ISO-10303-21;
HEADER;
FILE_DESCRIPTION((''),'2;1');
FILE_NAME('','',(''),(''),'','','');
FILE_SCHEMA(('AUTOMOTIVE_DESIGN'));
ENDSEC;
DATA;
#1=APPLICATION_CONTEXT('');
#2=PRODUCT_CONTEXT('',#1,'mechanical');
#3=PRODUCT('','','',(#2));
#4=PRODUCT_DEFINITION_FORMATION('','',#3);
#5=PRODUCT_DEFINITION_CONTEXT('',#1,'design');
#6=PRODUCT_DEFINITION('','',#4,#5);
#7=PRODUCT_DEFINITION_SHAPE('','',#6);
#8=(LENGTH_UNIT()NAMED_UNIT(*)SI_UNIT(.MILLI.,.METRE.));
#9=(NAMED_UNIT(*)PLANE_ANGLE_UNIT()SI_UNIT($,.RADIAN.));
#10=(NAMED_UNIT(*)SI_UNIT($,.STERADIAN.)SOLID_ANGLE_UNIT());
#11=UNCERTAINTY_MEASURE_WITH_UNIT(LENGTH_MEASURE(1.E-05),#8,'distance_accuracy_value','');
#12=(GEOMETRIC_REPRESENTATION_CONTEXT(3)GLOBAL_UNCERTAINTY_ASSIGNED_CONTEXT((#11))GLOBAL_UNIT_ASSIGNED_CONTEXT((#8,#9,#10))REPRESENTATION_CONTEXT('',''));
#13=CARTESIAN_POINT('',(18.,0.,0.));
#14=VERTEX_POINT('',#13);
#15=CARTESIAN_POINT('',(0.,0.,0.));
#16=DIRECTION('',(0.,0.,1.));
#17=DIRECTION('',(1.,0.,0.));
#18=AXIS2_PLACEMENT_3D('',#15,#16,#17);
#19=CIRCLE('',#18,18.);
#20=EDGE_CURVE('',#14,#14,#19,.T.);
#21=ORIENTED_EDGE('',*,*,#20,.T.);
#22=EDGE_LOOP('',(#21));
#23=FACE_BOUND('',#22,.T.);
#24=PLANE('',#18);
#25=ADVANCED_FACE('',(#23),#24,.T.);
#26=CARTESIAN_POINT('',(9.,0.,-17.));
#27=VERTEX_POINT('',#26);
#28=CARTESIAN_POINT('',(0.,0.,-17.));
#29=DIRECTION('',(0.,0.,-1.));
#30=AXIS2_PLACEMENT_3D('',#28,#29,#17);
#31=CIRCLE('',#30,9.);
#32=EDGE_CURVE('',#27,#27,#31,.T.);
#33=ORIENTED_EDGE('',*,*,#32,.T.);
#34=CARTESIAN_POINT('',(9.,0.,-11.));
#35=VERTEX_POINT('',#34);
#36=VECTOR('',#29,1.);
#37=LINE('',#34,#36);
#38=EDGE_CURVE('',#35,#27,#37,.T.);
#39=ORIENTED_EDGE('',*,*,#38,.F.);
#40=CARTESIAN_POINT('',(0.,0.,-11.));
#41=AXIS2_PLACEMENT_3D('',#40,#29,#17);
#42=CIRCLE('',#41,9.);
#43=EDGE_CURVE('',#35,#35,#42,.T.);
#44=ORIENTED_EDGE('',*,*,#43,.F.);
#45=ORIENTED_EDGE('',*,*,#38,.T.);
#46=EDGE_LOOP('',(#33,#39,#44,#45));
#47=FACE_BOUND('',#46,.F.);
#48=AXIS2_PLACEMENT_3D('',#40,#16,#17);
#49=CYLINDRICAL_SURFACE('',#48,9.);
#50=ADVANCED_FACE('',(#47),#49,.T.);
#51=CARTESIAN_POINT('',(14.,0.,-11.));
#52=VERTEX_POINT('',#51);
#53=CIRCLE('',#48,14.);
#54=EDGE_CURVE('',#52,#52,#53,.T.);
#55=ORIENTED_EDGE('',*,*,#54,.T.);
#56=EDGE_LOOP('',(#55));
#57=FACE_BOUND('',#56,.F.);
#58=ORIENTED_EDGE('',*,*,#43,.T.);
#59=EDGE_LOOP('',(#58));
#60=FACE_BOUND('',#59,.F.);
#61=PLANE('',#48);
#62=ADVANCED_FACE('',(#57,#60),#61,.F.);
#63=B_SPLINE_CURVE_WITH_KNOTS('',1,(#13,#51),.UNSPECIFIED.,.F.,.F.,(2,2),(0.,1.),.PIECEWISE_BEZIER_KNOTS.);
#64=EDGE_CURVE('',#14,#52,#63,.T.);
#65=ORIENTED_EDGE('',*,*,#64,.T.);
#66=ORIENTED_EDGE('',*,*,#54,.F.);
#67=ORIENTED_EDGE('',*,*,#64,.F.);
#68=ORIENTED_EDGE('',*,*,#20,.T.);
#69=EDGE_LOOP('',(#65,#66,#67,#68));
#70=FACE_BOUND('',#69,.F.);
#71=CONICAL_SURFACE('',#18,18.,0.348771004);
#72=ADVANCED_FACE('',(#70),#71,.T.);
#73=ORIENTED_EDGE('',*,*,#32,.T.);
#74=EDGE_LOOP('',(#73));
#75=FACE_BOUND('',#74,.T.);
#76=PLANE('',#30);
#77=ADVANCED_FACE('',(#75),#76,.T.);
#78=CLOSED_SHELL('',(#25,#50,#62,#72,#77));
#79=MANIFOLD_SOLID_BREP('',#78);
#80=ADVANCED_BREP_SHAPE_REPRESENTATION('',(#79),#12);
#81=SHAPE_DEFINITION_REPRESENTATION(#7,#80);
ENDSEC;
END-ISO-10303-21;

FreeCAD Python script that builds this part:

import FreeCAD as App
import Part
import Sketcher
from FreeCAD import Vector
Q = App.Units.Quantity

doc = App.newDocument("Part")
params = doc.addObject("Spreadsheet::Sheet", "Params")
for row, (alias, value) in enumerate([
    ("sketch1_diameter", "36 mm"),
    ("sketch2_diameter", "28 mm"),
    ("sketch3_diameter", "18 mm"),
    ("pad1_length", "6 mm"),
], start=1):
    params.set(f"A{row}", alias)
    params.set(f"B{row}", "=" + value)
    params.setAlias(f"B{row}", alias)

body = doc.addObject("PartDesign::Body", "Body")

# Sketch on XY plane
sketch1 = body.newObject("Sketcher::SketchObject", "Sketch")
sketch1.AttachmentSupport = (doc.getObject("XY_Plane"), [""])
sketch1.MapMode = "FlatFace"
sketch1.addGeometry(Part.Circle(Vector(0, 0, 0), Vector(0, 0, 1), 18), False)
sketch1.addConstraint(Sketcher.Constraint("Coincident", 0, 3, -1, 1))
sketch1.addConstraint(Sketcher.Constraint("Diameter", 0, Q("36 mm")))
sketch1.setExpression("Constraints[1]", "Params.sketch1_diameter")

# Sketch on XY plane
sketch2 = body.newObject("Sketcher::SketchObject", "Sketch001")
sketch2.AttachmentSupport = (doc.getObject("XY_Plane"), [""])
sketch2.MapMode = "FlatFace"
sketch2.AttachmentOffset = App.Placement(Vector(0, 0, -11), App.Rotation())
sketch2.addGeometry(Part.Circle(Vector(0, 0, 0), Vector(0, 0, 1), 14), False)
sketch2.addConstraint(Sketcher.Constraint("Coincident", 0, 3, -1, 1))
sketch2.addConstraint(Sketcher.Constraint("Diameter", 0, Q("28 mm")))
sketch2.setExpression("Constraints[1]", "Params.sketch2_diameter")

additiveloft = body.newObject("PartDesign::AdditiveLoft", "AdditiveLoft")
additiveloft.Profile = sketch1
additiveloft.Sections = [sketch2]

# Sketch on XY plane
sketch3 = body.newObject("Sketcher::SketchObject", "Sketch002")
sketch3.AttachmentSupport = (doc.getObject("XY_Plane"), [""])
sketch3.MapMode = "FlatFace"
sketch3.AttachmentOffset = App.Placement(Vector(0, 0, -11), App.Rotation())
sketch3.addGeometry(Part.Circle(Vector(0, 0, 0), Vector(0, 0, 1), 9), False)
sketch3.addConstraint(Sketcher.Constraint("Coincident", 0, 3, -1, 1))
sketch3.addConstraint(Sketcher.Constraint("Diameter", 0, Q("18 mm")))
sketch3.setExpression("Constraints[1]", "Params.sketch3_diameter")
pad1 = body.newObject("PartDesign::Pad", "Pad")
pad1.Profile = sketch3
pad1.setExpression("Length", "Params.pad1_length")
pad1.Reversed = True

doc.recompute()
